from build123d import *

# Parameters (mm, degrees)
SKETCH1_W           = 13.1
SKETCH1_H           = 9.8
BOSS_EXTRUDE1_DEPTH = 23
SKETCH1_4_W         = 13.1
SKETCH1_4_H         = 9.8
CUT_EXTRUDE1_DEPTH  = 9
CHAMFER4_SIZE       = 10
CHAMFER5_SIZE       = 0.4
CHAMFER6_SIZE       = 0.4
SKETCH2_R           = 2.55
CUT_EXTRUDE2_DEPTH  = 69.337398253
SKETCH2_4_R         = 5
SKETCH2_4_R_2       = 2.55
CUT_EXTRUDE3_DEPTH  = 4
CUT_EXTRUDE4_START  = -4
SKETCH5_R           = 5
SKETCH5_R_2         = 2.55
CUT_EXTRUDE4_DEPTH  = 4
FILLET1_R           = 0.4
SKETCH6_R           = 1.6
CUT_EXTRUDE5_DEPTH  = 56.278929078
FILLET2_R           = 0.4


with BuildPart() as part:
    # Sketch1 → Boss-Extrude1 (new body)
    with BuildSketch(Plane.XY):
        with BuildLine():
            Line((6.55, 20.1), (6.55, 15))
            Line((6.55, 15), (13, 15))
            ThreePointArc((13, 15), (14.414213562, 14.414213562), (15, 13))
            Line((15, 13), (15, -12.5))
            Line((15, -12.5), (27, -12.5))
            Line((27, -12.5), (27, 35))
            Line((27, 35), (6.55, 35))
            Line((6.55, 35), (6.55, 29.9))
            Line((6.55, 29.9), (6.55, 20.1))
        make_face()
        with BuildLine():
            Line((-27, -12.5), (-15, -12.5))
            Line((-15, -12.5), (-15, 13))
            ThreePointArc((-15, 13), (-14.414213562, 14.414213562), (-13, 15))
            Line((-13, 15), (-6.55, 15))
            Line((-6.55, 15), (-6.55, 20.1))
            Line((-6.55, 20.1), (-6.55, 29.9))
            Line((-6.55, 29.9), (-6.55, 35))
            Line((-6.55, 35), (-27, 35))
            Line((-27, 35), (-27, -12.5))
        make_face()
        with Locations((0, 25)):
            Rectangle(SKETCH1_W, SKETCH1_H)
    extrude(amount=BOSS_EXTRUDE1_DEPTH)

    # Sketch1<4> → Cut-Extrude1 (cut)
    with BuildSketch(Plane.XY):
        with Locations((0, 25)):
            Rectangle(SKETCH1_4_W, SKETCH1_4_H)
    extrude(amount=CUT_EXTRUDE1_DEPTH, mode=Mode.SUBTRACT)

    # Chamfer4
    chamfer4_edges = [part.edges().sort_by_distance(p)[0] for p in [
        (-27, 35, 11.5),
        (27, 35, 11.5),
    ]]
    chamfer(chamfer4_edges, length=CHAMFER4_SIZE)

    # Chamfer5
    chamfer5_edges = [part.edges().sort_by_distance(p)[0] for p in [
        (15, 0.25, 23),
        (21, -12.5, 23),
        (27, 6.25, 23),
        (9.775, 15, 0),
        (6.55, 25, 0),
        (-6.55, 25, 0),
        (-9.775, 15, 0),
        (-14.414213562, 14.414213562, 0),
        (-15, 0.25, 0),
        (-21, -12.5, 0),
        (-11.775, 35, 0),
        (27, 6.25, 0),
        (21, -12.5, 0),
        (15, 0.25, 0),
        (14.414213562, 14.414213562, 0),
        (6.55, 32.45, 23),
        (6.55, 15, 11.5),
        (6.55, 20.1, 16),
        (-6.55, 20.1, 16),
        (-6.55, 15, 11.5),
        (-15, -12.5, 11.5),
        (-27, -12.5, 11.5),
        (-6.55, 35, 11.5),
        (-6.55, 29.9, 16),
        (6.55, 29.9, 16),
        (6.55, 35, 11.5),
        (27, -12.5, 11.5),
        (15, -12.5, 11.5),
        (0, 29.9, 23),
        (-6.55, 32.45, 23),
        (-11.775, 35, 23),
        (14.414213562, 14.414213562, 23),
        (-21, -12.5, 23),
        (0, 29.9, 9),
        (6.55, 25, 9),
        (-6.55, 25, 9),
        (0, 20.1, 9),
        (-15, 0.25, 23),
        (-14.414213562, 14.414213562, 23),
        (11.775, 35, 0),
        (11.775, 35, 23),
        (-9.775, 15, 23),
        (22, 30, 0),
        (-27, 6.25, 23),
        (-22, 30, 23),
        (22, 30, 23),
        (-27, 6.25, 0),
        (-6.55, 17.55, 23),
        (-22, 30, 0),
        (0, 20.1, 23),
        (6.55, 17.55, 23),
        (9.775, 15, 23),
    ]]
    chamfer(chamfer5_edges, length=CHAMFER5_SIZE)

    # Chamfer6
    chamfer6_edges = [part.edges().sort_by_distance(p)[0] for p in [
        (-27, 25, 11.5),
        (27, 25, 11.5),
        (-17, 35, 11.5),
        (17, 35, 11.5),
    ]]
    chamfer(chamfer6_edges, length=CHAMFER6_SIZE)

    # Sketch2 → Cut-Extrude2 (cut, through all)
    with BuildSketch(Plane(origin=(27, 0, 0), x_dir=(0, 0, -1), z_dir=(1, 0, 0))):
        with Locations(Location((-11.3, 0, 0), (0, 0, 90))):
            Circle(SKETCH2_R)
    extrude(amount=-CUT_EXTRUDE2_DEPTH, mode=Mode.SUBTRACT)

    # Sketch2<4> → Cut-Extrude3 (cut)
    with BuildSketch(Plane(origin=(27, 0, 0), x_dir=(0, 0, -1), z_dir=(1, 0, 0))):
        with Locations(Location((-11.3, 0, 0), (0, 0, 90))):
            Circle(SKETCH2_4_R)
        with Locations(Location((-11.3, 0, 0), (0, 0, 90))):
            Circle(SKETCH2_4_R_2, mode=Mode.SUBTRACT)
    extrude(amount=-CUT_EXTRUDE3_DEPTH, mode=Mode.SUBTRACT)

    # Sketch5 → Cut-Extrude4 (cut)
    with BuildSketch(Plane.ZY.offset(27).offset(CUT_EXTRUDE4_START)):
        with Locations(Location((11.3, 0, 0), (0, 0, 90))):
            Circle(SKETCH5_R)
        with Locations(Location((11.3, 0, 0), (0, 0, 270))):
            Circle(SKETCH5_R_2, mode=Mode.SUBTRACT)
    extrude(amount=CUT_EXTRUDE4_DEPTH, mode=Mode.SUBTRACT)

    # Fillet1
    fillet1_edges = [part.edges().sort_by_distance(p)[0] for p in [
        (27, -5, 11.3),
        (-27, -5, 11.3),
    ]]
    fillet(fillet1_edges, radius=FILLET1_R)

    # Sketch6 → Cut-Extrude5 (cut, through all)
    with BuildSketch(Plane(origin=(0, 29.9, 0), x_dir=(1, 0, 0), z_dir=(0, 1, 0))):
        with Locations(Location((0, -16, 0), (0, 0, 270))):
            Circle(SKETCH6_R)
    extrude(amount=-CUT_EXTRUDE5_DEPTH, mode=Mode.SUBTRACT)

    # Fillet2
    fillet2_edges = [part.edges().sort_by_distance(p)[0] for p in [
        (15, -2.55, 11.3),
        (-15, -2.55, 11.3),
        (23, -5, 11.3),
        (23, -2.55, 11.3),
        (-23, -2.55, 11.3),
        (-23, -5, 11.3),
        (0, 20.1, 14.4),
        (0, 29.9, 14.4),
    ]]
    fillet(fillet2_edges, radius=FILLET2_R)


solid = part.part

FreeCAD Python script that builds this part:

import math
import FreeCAD as App
import Part
import Sketcher
from FreeCAD import Vector


def edges_at(feature, points):
    """Names of the edges that pass closest to the given points."""
    edges = feature.Shape.Edges
    near = lambda p: min(range(len(edges)), key=lambda i: edges[i].distToShape(Part.Vertex(*p))[0])
    return sorted({f"Edge{near(p) + 1}" for p in points})


def add_polygon(sketch, points):
    """Adds a closed chain of lines whose ends are joined by coincident constraints."""
    first, n = sketch.GeometryCount, len(points)
    for a, b in zip(points, points[1:] + points[:1]):
        sketch.addGeometry(Part.LineSegment(App.Vector(*a, 0), App.Vector(*b, 0)), False)
    for i in range(n):
        sketch.addConstraint(Sketcher.Constraint("Coincident", first + i, 2, first + (i + 1) % n, 1))

doc = App.newDocument("Part")
body = doc.addObject("PartDesign::Body", "Body")

# Sketch on XY plane
sketch1 = body.newObject("Sketcher::SketchObject", "Sketch")
sketch1.AttachmentSupport = (doc.getObject("XY_Plane"), [""])
sketch1.MapMode = "FlatFace"
sketch1.addGeometry([
    Part.LineSegment(Vector(6.5, 15, 0), Vector(13, 15, 0)),  # 0
    Part.ArcOfCircle(Part.Circle(Vector(13, 13, 0), Vector(0, 0, 1), 2), math.radians(0), math.radians(90)),  # 1
    Part.LineSegment(Vector(15, 13, 0), Vector(15, -12.5, 0)),  # 2
    Part.LineSegment(Vector(15, -12.5, 0), Vector(27, -12.5, 0)),  # 3
    Part.LineSegment(Vector(27, -12.5, 0), Vector(27, 35, 0)),  # 4
    Part.LineSegment(Vector(27, 35, 0), Vector(6.5, 35, 0)),  # 5
    Part.LineSegment(Vector(6.5, 35, 0), Vector(6.5, 29.9, 0)),  # 6
    Part.LineSegment(Vector(6.5, 29.9, 0), Vector(-6.5, 29.9, 0)),  # 7
    Part.LineSegment(Vector(-6.5, 29.9, 0), Vector(-6.5, 35, 0)),  # 8
    Part.LineSegment(Vector(-6.5, 35, 0), Vector(-27, 35, 0)),  # 9
    Part.LineSegment(Vector(-27, 35, 0), Vector(-27, -12.5, 0)),  # 10
    Part.LineSegment(Vector(-27, -12.5, 0), Vector(-15, -12.5, 0)),  # 11
    Part.LineSegment(Vector(-15, -12.5, 0), Vector(-15, 13, 0)),  # 12
    Part.ArcOfCircle(Part.Circle(Vector(-13, 13, 0), Vector(0, 0, 1), 2), math.radians(90), math.radians(180)),  # 13
    Part.LineSegment(Vector(-13, 15, 0), Vector(-6.5, 15, 0)),  # 14
    Part.LineSegment(Vector(-6.5, 15, 0), Vector(-6.5, 20.1, 0)),  # 15
    Part.LineSegment(Vector(-6.5, 20.1, 0), Vector(6.5, 20.1, 0)),  # 16
    Part.LineSegment(Vector(6.5, 20.1, 0), Vector(6.5, 15, 0)),  # 17
], False)
sketch1.addConstraint([
    Sketcher.Constraint("Tangent", 0, 2, 1, 2),
    Sketcher.Constraint("Tangent", 1, 1, 2, 1),
    Sketcher.Constraint("Coincident", 2, 2, 3, 1),
    Sketcher.Constraint("Coincident", 3, 2, 4, 1),
    Sketcher.Constraint("Coincident", 4, 2, 5, 1),
    Sketcher.Constraint("Coincident", 5, 2, 6, 1),
    Sketcher.Constraint("Coincident", 6, 2, 7, 1),
    Sketcher.Constraint("Coincident", 7, 2, 8, 1),
    Sketcher.Constraint("Coincident", 8, 2, 9, 1),
    Sketcher.Constraint("Coincident", 9, 2, 10, 1),
    Sketcher.Constraint("Coincident", 10, 2, 11, 1),
    Sketcher.Constraint("Coincident", 11, 2, 12, 1),
    Sketcher.Constraint("Tangent", 12, 2, 13, 2),
    Sketcher.Constraint("Tangent", 13, 1, 14, 1),
    Sketcher.Constraint("Coincident", 14, 2, 15, 1),
    Sketcher.Constraint("Coincident", 15, 2, 16, 1),
    Sketcher.Constraint("Coincident", 16, 2, 17, 1),
    Sketcher.Constraint("Coincident", 17, 2, 0, 1),
    Sketcher.Constraint("Horizontal", 0),
    Sketcher.Constraint("Vertical", 2),
    Sketcher.Constraint("Horizontal", 3),
    Sketcher.Constraint("Vertical", 4),
    Sketcher.Constraint("Horizontal", 5),
    Sketcher.Constraint("Vertical", 6),
    Sketcher.Constraint("Horizontal", 7),
    Sketcher.Constraint("Vertical", 8),
    Sketcher.Constraint("Horizontal", 9),
    Sketcher.Constraint("Vertical", 10),
    Sketcher.Constraint("Horizontal", 11),
    Sketcher.Constraint("Vertical", 12),
    Sketcher.Constraint("Horizontal", 14),
    Sketcher.Constraint("Vertical", 15),
    Sketcher.Constraint("Horizontal", 16),
    Sketcher.Constraint("Vertical", 17),
    Sketcher.Constraint("Equal", 1, 13),
    Sketcher.Constraint("Symmetric", 1, 3, 13, 3, -2),
    Sketcher.Constraint("Symmetric", 5, 2, 8, 2, -2),
    Sketcher.Constraint("Symmetric", 3, 2, 10, 2, -2),
    Sketcher.Constraint("Vertical", 8, 2, 14, 2),
    Sketcher.Constraint("Vertical", 6, 2, 16, 2),
    Sketcher.Constraint("Equal", 8, 15),
    Sketcher.Constraint("Radius", 1, 2.0),
    Sketcher.Constraint("DistanceX", 3, 1, 3, 2, 12.0),
    Sketcher.Constraint("DistanceX", 7, 2, 7, 1, 13.1),
    Sketcher.Constraint("DistanceY", 2, 2, 2, 1, 25.5),
    Sketcher.Constraint("DistanceY", 4, 1, 4, 2, 47.5),
    Sketcher.Constraint("DistanceY", 6, 2, 6, 1, 5.1),
    Sketcher.Constraint("DistanceX", -1, 1, 1, 3, 13.0),
    Sketcher.Constraint("DistanceY", -1, 1, 1, 3, 13.0),
])
pad1 = body.newObject("PartDesign::Pad", "Pad")
pad1.Profile = sketch1
pad1.Length = 23

# Sketch on XY plane
sketch2 = body.newObject("Sketcher::SketchObject", "Sketch001")
sketch2.AttachmentSupport = (doc.getObject("XY_Plane"), [""])
sketch2.MapMode = "FlatFace"
add_polygon(sketch2, [(-7, 30), (-7, 20), (7, 20), (7, 30)])  # lines 0-3
sketch2.addConstraint([
    Sketcher.Constraint("Vertical", 0),
    Sketcher.Constraint("Horizontal", 1),
    Sketcher.Constraint("Vertical", 2),
    Sketcher.Constraint("Horizontal", 3),
    Sketcher.Constraint("DistanceX", 1, 1, 1, 2, 13.1),
    Sketcher.Constraint("DistanceY", 0, 2, 0, 1, 9.8),
    Sketcher.Constraint("DistanceY", -1, 1, 0, 2, 20.1),
    Sketcher.Constraint("DistanceX", 0, 2, -1, 1, 6.55),
])
pocket1 = body.newObject("PartDesign::Pocket", "Pocket")
pocket1.Profile = sketch2
pocket1.Length = 9
pocket1.Reversed = True
doc.recompute()

chamfer = body.newObject("PartDesign::Chamfer", "Chamfer")
chamfer.Base = (pocket1, edges_at(pocket1, [(-27, 35, 11.5), (27, 35, 11.5)]))
chamfer.Size = 10
doc.recompute()

chamfer2 = body.newObject("PartDesign::Chamfer", "Chamfer001")
chamfer2.Base = (chamfer, edges_at(chamfer, [
    (15, 0.25, 23),
    (21, -12.5, 23),
    (27, 6.25, 23),
    (9.775, 15, 0),
    (6.55, 25, 0),
    (-6.55, 25, 0),
    (-9.775, 15, 0),
    (-14.414, 14.414, 0),
    (-15, 0.25, 0),
    (-21, -12.5, 0),
    (-11.775, 35, 0),
    (27, 6.25, 0),
    (21, -12.5, 0),
    (15, 0.25, 0),
    (14.414, 14.414, 0),
    (6.55, 32.45, 23),
    (6.55, 15, 11.5),
    (6.55, 20.1, 16),
    (-6.55, 20.1, 16),
    (-6.55, 15, 11.5),
    (-15, -12.5, 11.5),
    (-27, -12.5, 11.5),
    (-6.55, 35, 11.5),
    (-6.55, 29.9, 16),
    (6.55, 29.9, 16),
    (6.55, 35, 11.5),
    (27, -12.5, 11.5),
    (15, -12.5, 11.5),
    (0, 29.9, 23),
    (-6.55, 32.45, 23),
    (-11.775, 35, 23),
    (14.414, 14.414, 23),
    (-21, -12.5, 23),
    (0, 29.9, 9),
    (6.55, 25, 9),
    (-6.55, 25, 9),
    (0, 20.1, 9),
    (-15, 0.25, 23),
    (-14.414, 14.414, 23),
    (11.775, 35, 0),
    (11.775, 35, 23),
    (-9.775, 15, 23),
    (22, 30, 0),
    (-27, 6.25, 23),
    (-22, 30, 23),
    (22, 30, 23),
    (-27, 6.25, 0),
    (-6.55, 17.55, 23),
    (-22, 30, 0),
    (0, 20.1, 23),
    (6.55, 17.55, 23),
    (9.775, 15, 23),
]))
chamfer2.Size = 0.4
doc.recompute()

chamfer3 = body.newObject("PartDesign::Chamfer", "Chamfer002")
chamfer3.Base = (chamfer2, edges_at(chamfer2, [
    (-27, 25, 11.5),
    (27, 25, 11.5),
    (-17, 35, 11.5),
    (17, 35, 11.5),
]))
chamfer3.Size = 0.4

# Sketch on YZ plane
sketch3 = body.newObject("Sketcher::SketchObject", "Sketch002")
sketch3.AttachmentSupport = (doc.getObject("YZ_Plane"), [""])
sketch3.MapMode = "FlatFace"
sketch3.AttachmentOffset = App.Placement(Vector(0, 0, 27), App.Rotation())
sketch3.addGeometry(Part.Circle(Vector(0, 11.3, 0), Vector(0, 0, 1), 2.5), False)
sketch3.addConstraint([
    Sketcher.Constraint("PointOnObject", 0, 3, -2),
    Sketcher.Constraint("Diameter", 0, 5.1),
    Sketcher.Constraint("DistanceY", -1, 1, 0, 3, 11.3),
])
pocket2 = body.newObject("PartDesign::Pocket", "Pocket001")
pocket2.Profile = sketch3
pocket2.Type = "ThroughAll"

# Sketch on YZ plane
sketch4 = body.newObject("Sketcher::SketchObject", "Sketch003")
sketch4.AttachmentSupport = (doc.getObject("YZ_Plane"), [""])
sketch4.MapMode = "FlatFace"
sketch4.AttachmentOffset = App.Placement(Vector(0, 0, 27), App.Rotation())
sketch4.addGeometry([
    Part.Circle(Vector(0, 11.3, 0), Vector(0, 0, 1), 5),
    Part.Circle(Vector(0, 11.3, 0), Vector(0, 0, 1), 2.5),
], False)
sketch4.addConstraint([
    Sketcher.Constraint("Coincident", 1, 3, 0, 3),
    Sketcher.Constraint("PointOnObject", 0, 3, -2),
    Sketcher.Constraint("Diameter", 0, 10.0),
    Sketcher.Constraint("Diameter", 1, 5.1),
    Sketcher.Constraint("DistanceY", -1, 1, 0, 3, 11.3),
])
pocket3 = body.newObject("PartDesign::Pocket", "Pocket002")
pocket3.Profile = sketch4
pocket3.Length = 4

# Sketch on YZ plane
sketch5 = body.newObject("Sketcher::SketchObject", "Sketch004")
sketch5.AttachmentSupport = (doc.getObject("YZ_Plane"), [""])
sketch5.MapMode = "FlatFace"
sketch5.AttachmentOffset = App.Placement(Vector(0, 0, -23), App.Rotation())
sketch5.addGeometry([
    Part.Circle(Vector(0, 11.3, 0), Vector(0, 0, 1), 5),
    Part.Circle(Vector(0, 11.3, 0), Vector(0, 0, 1), 2.5),
], False)
sketch5.addConstraint([
    Sketcher.Constraint("Coincident", 1, 3, 0, 3),
    Sketcher.Constraint("PointOnObject", 0, 3, -2),
    Sketcher.Constraint("Diameter", 0, 10.0),
    Sketcher.Constraint("Diameter", 1, 5.1),
    Sketcher.Constraint("DistanceY", -1, 1, 0, 3, 11.3),
])
pocket4 = body.newObject("PartDesign::Pocket", "Pocket003")
pocket4.Profile = sketch5
pocket4.Length = 4
doc.recompute()

fillet = body.newObject("PartDesign::Fillet", "Fillet")
fillet.Base = (pocket4, edges_at(pocket4, [(27, -5, 11.3), (-27, -5, 11.3)]))
fillet.Radius = 0.4

# Sketch on XZ plane
sketch6 = body.newObject("Sketcher::SketchObject", "Sketch005")
sketch6.AttachmentSupport = (doc.getObject("XZ_Plane"), [""])
sketch6.MapMode = "FlatFace"
sketch6.AttachmentOffset = App.Placement(Vector(0, 0, -29.9), App.Rotation())
sketch6.addGeometry(Part.Circle(Vector(0, 16, 0), Vector(0, 0, 1), 1.6), False)
sketch6.addConstraint([
    Sketcher.Constraint("PointOnObject", 0, 3, -2),
    Sketcher.Constraint("Diameter", 0, 3.2),
    Sketcher.Constraint("DistanceY", -1, 1, 0, 3, 16.0),
])
pocket5 = body.newObject("PartDesign::Pocket", "Pocket004")
pocket5.Profile = sketch6
pocket5.Type = "ThroughAll"
pocket5.Reversed = True
doc.recompute()

fillet2 = body.newObject("PartDesign::Fillet", "Fillet001")
fillet2.Base = (pocket5, edges_at(pocket5, [
    (15, -2.55, 11.3),
    (-15, -2.55, 11.3),
    (23, -5, 11.3),
    (23, -2.55, 11.3),
    (-23, -2.55, 11.3),
    (-23, -5, 11.3),
    (0, 20.1, 14.4),
    (0, 29.9, 14.4),
]))
fillet2.Radius = 0.4

doc.recompute()
